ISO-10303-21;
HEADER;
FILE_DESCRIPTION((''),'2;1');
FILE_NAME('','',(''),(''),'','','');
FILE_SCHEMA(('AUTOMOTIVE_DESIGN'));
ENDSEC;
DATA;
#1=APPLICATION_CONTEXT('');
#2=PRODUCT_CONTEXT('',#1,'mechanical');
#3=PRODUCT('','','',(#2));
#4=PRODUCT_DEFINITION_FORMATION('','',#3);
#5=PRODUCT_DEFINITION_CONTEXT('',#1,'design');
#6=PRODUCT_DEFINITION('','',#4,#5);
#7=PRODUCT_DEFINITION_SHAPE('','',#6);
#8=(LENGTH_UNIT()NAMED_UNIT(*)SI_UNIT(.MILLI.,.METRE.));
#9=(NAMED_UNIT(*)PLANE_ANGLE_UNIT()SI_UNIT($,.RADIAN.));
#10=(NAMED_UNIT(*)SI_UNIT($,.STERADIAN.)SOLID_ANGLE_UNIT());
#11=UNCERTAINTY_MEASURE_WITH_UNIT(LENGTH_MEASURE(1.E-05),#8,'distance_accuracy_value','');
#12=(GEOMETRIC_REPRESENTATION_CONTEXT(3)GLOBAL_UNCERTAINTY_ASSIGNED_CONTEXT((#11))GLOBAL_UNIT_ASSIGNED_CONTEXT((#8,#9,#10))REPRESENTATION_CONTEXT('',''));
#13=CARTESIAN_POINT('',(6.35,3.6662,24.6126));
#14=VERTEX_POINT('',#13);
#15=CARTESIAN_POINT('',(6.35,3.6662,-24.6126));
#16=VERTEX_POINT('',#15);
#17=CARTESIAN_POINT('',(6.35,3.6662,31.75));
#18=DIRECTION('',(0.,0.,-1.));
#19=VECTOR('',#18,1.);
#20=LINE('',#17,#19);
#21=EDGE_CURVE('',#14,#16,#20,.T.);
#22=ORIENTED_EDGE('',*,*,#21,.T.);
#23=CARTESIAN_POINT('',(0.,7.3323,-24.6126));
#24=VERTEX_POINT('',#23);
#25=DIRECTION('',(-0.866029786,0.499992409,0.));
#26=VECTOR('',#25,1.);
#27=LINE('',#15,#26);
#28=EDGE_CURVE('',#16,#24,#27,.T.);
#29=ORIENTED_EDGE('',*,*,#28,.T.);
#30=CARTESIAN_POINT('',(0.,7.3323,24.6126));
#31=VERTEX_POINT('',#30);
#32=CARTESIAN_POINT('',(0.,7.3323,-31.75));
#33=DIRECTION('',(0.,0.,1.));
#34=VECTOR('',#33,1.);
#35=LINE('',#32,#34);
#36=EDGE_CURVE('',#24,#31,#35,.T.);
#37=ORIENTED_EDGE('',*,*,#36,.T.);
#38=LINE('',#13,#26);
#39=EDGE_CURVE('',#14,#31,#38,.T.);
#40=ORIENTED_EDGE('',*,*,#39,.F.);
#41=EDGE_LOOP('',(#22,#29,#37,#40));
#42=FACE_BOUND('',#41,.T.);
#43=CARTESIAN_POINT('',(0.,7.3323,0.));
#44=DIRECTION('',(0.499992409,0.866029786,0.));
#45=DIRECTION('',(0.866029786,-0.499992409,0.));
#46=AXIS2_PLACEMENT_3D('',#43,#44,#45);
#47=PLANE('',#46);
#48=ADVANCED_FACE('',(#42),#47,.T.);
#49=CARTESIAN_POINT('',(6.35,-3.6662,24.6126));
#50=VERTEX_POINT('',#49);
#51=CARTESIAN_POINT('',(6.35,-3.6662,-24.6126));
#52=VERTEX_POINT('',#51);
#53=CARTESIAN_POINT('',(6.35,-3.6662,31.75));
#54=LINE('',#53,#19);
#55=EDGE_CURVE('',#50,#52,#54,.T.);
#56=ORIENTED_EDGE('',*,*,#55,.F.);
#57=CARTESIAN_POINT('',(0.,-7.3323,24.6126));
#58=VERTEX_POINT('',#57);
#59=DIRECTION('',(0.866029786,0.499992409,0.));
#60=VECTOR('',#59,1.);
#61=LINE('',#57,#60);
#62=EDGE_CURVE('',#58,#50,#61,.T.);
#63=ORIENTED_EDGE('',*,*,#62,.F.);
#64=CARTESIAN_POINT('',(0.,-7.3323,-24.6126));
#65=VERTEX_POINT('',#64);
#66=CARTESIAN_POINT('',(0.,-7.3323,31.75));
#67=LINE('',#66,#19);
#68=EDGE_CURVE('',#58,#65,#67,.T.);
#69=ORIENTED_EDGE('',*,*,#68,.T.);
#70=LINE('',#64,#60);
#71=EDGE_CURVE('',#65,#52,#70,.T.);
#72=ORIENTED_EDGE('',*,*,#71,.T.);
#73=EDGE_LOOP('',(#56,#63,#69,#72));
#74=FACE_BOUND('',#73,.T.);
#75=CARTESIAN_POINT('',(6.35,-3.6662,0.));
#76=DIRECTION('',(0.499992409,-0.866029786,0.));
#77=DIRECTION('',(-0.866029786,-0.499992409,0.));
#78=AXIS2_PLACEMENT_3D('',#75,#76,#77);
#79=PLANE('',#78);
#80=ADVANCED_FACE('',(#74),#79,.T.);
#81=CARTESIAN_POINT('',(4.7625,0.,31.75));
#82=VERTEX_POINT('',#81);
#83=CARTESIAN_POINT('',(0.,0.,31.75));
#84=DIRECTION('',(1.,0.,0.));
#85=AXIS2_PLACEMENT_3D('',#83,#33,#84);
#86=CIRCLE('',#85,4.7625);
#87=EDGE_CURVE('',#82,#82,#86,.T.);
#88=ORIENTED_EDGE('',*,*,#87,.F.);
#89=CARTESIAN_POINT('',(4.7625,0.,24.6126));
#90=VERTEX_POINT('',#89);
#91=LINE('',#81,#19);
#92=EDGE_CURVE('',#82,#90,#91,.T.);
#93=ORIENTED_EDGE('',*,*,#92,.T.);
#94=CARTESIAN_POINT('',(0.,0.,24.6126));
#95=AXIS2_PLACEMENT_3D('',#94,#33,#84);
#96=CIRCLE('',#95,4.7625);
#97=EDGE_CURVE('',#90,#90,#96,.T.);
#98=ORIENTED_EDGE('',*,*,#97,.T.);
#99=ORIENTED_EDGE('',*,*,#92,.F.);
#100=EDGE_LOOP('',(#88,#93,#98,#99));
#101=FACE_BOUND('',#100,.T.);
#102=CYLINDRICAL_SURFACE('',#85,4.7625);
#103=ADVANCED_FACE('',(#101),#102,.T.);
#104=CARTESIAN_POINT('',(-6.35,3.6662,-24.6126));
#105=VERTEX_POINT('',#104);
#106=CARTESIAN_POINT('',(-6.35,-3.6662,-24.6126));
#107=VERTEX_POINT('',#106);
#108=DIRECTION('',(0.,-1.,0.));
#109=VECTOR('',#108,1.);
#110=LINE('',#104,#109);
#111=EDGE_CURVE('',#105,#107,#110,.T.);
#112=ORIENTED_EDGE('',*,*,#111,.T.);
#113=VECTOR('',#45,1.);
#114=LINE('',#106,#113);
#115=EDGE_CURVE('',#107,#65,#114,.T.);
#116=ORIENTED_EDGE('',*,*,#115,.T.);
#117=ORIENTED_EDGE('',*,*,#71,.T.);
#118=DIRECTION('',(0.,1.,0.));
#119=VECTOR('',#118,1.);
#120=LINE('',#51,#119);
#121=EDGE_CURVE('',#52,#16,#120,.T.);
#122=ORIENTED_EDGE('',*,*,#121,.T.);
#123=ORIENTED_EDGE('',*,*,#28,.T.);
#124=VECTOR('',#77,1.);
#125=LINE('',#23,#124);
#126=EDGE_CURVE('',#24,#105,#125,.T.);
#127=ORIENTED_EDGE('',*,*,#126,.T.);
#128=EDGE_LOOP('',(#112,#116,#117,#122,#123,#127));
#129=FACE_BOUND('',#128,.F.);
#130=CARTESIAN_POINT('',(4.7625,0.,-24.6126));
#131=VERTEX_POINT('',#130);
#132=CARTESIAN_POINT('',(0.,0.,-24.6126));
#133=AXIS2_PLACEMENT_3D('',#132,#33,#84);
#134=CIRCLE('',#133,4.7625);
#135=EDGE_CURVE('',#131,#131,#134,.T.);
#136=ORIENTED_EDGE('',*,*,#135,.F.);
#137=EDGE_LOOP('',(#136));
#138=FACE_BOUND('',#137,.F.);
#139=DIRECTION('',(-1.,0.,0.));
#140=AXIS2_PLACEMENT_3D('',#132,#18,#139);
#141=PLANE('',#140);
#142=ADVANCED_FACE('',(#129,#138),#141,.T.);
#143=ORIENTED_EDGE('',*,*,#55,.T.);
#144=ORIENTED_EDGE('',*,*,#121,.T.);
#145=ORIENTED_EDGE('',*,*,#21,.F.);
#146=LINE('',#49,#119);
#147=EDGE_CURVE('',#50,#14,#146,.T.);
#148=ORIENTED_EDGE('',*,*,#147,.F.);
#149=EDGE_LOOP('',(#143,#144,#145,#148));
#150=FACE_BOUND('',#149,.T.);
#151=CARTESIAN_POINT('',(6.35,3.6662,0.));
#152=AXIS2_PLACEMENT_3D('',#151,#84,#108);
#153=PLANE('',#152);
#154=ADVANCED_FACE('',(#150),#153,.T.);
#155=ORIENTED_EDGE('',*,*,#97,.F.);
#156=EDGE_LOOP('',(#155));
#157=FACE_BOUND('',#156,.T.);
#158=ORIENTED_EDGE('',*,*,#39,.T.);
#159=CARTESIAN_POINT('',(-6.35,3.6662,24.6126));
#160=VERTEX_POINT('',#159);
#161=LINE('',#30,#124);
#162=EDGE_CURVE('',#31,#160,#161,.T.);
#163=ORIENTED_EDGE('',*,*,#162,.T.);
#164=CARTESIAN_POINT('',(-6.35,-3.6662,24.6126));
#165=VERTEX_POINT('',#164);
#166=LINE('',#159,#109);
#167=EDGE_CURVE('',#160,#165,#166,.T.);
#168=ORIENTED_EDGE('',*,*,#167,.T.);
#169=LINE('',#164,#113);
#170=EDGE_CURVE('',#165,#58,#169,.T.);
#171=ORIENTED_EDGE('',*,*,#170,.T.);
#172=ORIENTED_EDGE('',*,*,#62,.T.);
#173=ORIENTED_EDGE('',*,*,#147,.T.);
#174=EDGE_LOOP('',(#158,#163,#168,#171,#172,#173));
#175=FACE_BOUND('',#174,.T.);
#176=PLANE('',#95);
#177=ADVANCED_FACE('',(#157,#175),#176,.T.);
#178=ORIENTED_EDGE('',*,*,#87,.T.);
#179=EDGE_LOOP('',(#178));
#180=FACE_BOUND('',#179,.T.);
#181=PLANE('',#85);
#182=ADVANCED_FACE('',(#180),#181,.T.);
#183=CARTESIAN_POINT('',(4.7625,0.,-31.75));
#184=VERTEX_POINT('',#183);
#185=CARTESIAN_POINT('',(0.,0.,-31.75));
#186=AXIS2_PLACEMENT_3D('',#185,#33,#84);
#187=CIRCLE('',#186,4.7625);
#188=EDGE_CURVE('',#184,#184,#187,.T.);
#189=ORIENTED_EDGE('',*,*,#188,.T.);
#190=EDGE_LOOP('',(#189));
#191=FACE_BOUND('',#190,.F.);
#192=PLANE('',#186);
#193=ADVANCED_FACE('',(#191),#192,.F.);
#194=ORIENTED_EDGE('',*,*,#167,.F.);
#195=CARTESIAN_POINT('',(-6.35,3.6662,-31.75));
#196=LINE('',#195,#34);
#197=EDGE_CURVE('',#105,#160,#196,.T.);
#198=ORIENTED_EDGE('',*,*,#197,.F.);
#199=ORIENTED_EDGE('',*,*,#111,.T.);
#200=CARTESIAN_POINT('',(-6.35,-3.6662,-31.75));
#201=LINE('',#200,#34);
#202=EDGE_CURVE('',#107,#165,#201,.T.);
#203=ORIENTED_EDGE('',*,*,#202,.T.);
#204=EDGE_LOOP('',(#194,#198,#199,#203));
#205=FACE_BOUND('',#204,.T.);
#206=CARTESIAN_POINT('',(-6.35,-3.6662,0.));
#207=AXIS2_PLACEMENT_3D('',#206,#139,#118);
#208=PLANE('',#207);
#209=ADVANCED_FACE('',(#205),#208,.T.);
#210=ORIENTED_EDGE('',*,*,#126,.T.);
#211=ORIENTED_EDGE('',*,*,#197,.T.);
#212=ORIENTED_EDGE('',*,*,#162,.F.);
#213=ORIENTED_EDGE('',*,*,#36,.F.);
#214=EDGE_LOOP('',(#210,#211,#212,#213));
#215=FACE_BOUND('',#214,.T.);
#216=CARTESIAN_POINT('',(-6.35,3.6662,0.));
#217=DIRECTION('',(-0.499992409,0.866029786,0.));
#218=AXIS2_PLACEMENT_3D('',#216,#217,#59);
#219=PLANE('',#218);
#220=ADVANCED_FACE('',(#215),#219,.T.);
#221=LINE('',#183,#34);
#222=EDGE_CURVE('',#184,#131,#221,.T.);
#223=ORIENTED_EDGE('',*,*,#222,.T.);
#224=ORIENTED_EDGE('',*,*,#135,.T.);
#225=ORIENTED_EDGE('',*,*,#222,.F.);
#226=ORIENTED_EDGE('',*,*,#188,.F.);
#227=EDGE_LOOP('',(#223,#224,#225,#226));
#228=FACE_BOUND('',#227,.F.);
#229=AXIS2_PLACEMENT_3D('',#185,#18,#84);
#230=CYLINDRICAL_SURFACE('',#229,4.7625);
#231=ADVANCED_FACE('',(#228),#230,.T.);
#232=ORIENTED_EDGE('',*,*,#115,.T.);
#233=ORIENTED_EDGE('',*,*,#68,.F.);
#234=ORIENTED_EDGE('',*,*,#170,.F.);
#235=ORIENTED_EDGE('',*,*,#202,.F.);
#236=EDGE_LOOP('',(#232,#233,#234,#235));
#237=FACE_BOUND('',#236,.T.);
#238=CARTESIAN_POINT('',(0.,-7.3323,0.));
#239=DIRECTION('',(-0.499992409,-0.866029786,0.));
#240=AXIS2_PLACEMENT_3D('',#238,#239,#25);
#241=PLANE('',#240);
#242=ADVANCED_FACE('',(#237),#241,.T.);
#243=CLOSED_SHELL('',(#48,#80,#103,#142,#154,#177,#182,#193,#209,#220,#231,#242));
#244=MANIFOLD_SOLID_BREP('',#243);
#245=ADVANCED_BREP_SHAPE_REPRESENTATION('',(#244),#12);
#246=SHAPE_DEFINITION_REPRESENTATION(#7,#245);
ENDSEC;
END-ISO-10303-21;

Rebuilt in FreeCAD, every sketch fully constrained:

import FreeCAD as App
import Part
import Sketcher
Q = App.Units.Quantity


def add_polygon(sketch, points):
    """Adds a closed chain of lines whose ends are joined by coincident constraints."""
    first, n = sketch.GeometryCount, len(points)
    for a, b in zip(points, points[1:] + points[:1]):
        sketch.addGeometry(Part.LineSegment(App.Vector(*a, 0), App.Vector(*b, 0)), False)
    for i in range(n):
        sketch.addConstraint(Sketcher.Constraint("Coincident", first + i, 2, first + (i + 1) % n, 1))

doc = App.newDocument("Part")
body = doc.addObject("PartDesign::Body", "Body")

sketch1 = body.newObject("Sketcher::SketchObject", "Sketch")
sketch1.AttachmentSupport = (doc.getObject("XY_Plane"), [""])
sketch1.MapMode = "FlatFace"
add_polygon(sketch1, [(6.35, 3.6662), (0, 7.3323), (-6.35, 3.6662), (-6.35, -3.6662), (0, -7.3323), (6.35, -3.6662)])
sketch1.addConstraint(Sketcher.Constraint("Vertical", 2))
sketch1.addConstraint(Sketcher.Constraint("Vertical", 5))
sketch1.addConstraint(Sketcher.Constraint("Symmetric", 0, 2, 3, 2, -1, 1))
sketch1.addConstraint(Sketcher.Constraint("Symmetric", 1, 2, 4, 2, -1, 1))
sketch1.addConstraint(Sketcher.Constraint("PointOnObject", 0, 2, -2))
sketch1.addConstraint(Sketcher.Constraint("Parallel", 0, 3))
sketch1.addConstraint(Sketcher.Constraint("Horizontal", 2, 2, 4, 2))
sketch1.addConstraint(Sketcher.Constraint("DistanceX", 2, 2, 4, 2, Q("0.5 in")))
sketch1.addConstraint(Sketcher.Constraint("Angle", 0, Q("150.0005 deg")))
sketch1.addConstraint(Sketcher.Constraint("DistanceY", 2, 2, 0, 2, Q("0.433 in")))
pad1 = body.newObject("PartDesign::Pad", "Pad")
pad1.Profile = sketch1
pad1.Length = Q("2.5 in")
pad1.Midplane = True

sketch2 = body.newObject("Sketcher::SketchObject", "Sketch001")
sketch2.AttachmentSupport = (doc.getObject("XY_Plane"), [""])
sketch2.MapMode = "FlatFace"
sketch2.AttachmentOffset = App.Placement(App.Vector(0, 0, 1.25 * 25.4), App.Rotation())
add_polygon(sketch2, [(0, 7.3323), (-6.35, 3.6662), (-6.35, -3.6662), (0, -7.3323), (6.35, -3.6662), (6.35, 3.6662)])
sketch2.addGeometry(Part.Circle(App.Vector(0, 0, 0), App.Vector(0, 0, 1), 4.7625), False)
sketch2.addConstraint(Sketcher.Constraint("Vertical", 1))
sketch2.addConstraint(Sketcher.Constraint("Vertical", 4))
sketch2.addConstraint(Sketcher.Constraint("Coincident", 6, 3, -1, 1))
sketch2.addConstraint(Sketcher.Constraint("Symmetric", 0, 2, 3, 2, -1, 1))
sketch2.addConstraint(Sketcher.Constraint("Symmetric", 2, 2, 5, 2, -1, 1))
sketch2.addConstraint(Sketcher.Constraint("PointOnObject", 2, 2, -2))
sketch2.addConstraint(Sketcher.Constraint("Parallel", 2, 5))
sketch2.addConstraint(Sketcher.Constraint("Horizontal", 1, 2, 3, 2))
sketch2.addConstraint(Sketcher.Constraint("Diameter", 6, Q("0.375 in")))
sketch2.addConstraint(Sketcher.Constraint("Angle", 0, Q("-150.0005 deg")))
sketch2.addConstraint(Sketcher.Constraint("DistanceX", 1, 2, 3, 2, Q("0.5 in")))
sketch2.addConstraint(Sketcher.Constraint("DistanceY", 2, 2, 0, 2, Q("0.433 in")))
pocket1 = body.newObject("PartDesign::Pocket", "Pocket")
pocket1.Profile = sketch2
pocket1.Length = Q("0.281 in")
doc.recompute()

mirrored = body.newObject("PartDesign::Mirrored", "Mirrored")
mirrored.Originals = [pocket1]
mirrored.MirrorPlane = (doc.getObject("XY_Plane"), [""])
body.Tip = mirrored

doc.recompute()
